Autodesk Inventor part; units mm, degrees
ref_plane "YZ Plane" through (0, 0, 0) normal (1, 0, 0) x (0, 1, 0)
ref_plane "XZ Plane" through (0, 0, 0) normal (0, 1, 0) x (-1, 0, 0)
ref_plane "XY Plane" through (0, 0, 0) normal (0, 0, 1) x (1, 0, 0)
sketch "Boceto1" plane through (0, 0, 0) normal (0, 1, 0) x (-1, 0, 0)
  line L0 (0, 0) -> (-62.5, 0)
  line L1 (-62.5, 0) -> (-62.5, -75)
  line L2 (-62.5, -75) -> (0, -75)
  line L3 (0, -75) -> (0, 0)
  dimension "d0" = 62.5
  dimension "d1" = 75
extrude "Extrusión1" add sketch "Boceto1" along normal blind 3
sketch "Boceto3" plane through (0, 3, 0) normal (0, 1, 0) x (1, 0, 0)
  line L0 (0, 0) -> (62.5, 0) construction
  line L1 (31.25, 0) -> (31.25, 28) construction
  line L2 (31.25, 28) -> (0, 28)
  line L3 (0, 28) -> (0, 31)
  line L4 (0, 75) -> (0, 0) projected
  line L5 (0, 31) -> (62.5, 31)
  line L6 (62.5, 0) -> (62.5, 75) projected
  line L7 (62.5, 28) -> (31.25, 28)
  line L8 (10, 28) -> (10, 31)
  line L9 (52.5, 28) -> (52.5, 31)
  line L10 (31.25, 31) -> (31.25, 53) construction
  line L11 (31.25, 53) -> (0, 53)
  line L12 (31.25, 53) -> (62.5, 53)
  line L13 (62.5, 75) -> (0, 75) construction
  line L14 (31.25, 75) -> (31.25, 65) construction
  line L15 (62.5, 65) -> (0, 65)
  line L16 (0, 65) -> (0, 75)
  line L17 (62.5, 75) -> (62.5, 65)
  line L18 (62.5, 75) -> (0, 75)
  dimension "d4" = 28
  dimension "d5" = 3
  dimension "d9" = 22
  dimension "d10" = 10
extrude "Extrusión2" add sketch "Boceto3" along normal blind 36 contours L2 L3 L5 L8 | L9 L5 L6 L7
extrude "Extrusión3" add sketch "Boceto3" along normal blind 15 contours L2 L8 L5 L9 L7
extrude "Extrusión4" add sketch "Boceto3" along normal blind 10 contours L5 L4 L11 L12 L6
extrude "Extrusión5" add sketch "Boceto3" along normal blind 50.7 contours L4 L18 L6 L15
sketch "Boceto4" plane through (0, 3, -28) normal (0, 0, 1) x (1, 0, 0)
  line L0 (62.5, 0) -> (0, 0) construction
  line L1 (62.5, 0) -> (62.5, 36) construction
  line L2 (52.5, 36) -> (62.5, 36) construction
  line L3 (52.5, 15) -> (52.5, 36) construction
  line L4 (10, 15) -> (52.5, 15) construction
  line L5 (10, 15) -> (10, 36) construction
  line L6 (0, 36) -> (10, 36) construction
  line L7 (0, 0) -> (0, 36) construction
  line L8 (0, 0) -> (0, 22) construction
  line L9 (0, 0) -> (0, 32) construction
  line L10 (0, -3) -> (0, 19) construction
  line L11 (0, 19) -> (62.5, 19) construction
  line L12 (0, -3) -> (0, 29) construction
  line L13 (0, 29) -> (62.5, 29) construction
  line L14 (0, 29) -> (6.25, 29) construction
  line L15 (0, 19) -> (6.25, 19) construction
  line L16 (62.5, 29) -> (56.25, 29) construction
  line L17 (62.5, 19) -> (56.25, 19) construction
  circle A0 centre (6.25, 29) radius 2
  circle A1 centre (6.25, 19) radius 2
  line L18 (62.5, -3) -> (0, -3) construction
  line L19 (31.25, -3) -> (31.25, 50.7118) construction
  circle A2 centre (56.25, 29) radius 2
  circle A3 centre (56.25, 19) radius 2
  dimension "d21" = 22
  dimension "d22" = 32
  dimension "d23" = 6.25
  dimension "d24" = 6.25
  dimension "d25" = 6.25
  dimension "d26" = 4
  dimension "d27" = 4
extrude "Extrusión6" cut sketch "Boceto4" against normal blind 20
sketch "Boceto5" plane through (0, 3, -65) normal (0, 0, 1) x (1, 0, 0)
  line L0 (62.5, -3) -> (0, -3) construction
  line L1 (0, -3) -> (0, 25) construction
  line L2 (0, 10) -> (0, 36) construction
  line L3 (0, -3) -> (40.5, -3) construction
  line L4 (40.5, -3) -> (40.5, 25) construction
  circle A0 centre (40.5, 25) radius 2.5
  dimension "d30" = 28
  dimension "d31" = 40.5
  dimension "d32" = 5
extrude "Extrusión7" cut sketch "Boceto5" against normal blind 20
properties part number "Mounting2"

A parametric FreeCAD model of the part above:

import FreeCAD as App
import Part
import Sketcher
Q = App.Units.Quantity

doc = App.newDocument("Part")
params = doc.addObject("Spreadsheet::Sheet", "Params")
for row, (alias, value) in enumerate([
    ("sketch1_height", "75 mm"),
    ("sketch1_width", "62.5 mm"),
    ("pad1_length", "3 mm"),
    ("sketch2_width", "10 mm"),
    ("sketch2_height", "3 mm"),
    ("pad2_length", "36 mm"),
    ("sketch3_height", "3 mm"),
    ("sketch3_width", "42.5 mm"),
    ("pad3_length", "15 mm"),
    ("sketch4_height", "22 mm"),
    ("sketch4_width", "62.5 mm"),
    ("pad4_length", "10 mm"),
    ("sketch5_height", "10 mm"),
    ("sketch5_width", "62.5 mm"),
    ("pad5_length", "50.7 mm"),
    ("sketch6_diameter", "4 mm"),
    ("pocket1_length", "20 mm"),
    ("sketch7_diameter", "5 mm"),
    ("pocket2_length", "20 mm"),
], start=1):
    params.set(f"A{row}", alias)
    params.set(f"B{row}", "=" + value)
    params.setAlias(f"B{row}", alias)

body = doc.addObject("PartDesign::Body", "Body")

sketch1 = doc.addObject("Sketcher::SketchObject", "Sketch")
body.addObject(sketch1)
sketch1.AttachmentSupport = (doc.XZ_Plane, [""])
sketch1.MapMode = "FlatFace"
sketch1.addGeometry(Part.LineSegment(App.Vector(0, -75, 0), App.Vector(0, 0, 0)), False)
sketch1.addGeometry(Part.LineSegment(App.Vector(0, 0, 0), App.Vector(62, 0, 0)), False)
sketch1.addGeometry(Part.LineSegment(App.Vector(62, 0, 0), App.Vector(62, -75, 0)), False)
sketch1.addGeometry(Part.LineSegment(App.Vector(62, -75, 0), App.Vector(0, -75, 0)), False)
sketch1.addConstraint(Sketcher.Constraint("Coincident", 0, 2, 1, 1))
sketch1.addConstraint(Sketcher.Constraint("Coincident", 1, 2, 2, 1))
sketch1.addConstraint(Sketcher.Constraint("Coincident", 2, 2, 3, 1))
sketch1.addConstraint(Sketcher.Constraint("Coincident", 3, 2, 0, 1))
sketch1.addConstraint(Sketcher.Constraint("Vertical", 0))
sketch1.addConstraint(Sketcher.Constraint("Horizontal", 1))
sketch1.addConstraint(Sketcher.Constraint("Vertical", 2))
sketch1.addConstraint(Sketcher.Constraint("Horizontal", 3))
sketch1.addConstraint(Sketcher.Constraint("Coincident", 0, 2, -1, 1))
sketch1.addConstraint(Sketcher.Constraint("DistanceY", 0, 1, 0, 2, Q("75 mm")))
sketch1.addConstraint(Sketcher.Constraint("DistanceX", 1, 1, 1, 2, Q("62.5 mm")))
sketch1.setExpression("Constraints[9]", "Params.sketch1_height")
sketch1.setExpression("Constraints[10]", "Params.sketch1_width")
pad1 = doc.addObject("PartDesign::Pad", "Pad")
body.addObject(pad1)
pad1.Profile = sketch1
pad1.setExpression("Length", "Params.pad1_length")
pad1.Reversed = True

sketch2 = doc.addObject("Sketcher::SketchObject", "Sketch001")
body.addObject(sketch2)
sketch2.AttachmentSupport = (doc.XZ_Plane, [""])
sketch2.MapMode = "FlatFace"
sketch2.AttachmentOffset = App.Placement(App.Vector(0, 0, -3), App.Rotation())
sketch2.addGeometry(Part.LineSegment(App.Vector(0, -28, 0), App.Vector(10, -28, 0)), False)
sketch2.addGeometry(Part.LineSegment(App.Vector(10, -28, 0), App.Vector(10, -31, 0)), False)
sketch2.addGeometry(Part.LineSegment(App.Vector(10, -31, 0), App.Vector(0, -31, 0)), False)
sketch2.addGeometry(Part.LineSegment(App.Vector(0, -31, 0), App.Vector(0, -28, 0)), False)
sketch2.addGeometry(Part.LineSegment(App.Vector(52.5, -31, 0), App.Vector(52.5, -28, 0)), False)
sketch2.addGeometry(Part.LineSegment(App.Vector(52.5, -28, 0), App.Vector(62.5, -28, 0)), False)
sketch2.addGeometry(Part.LineSegment(App.Vector(62.5, -28, 0), App.Vector(62.5, -31, 0)), False)
sketch2.addGeometry(Part.LineSegment(App.Vector(62.5, -31, 0), App.Vector(52.5, -31, 0)), False)
sketch2.addConstraint(Sketcher.Constraint("Coincident", 0, 2, 1, 1))
sketch2.addConstraint(Sketcher.Constraint("Coincident", 1, 2, 2, 1))
sketch2.addConstraint(Sketcher.Constraint("Coincident", 2, 2, 3, 1))
sketch2.addConstraint(Sketcher.Constraint("Coincident", 3, 2, 0, 1))
sketch2.addConstraint(Sketcher.Constraint("Coincident", 4, 2, 5, 1))
sketch2.addConstraint(Sketcher.Constraint("Coincident", 5, 2, 6, 1))
sketch2.addConstraint(Sketcher.Constraint("Coincident", 6, 2, 7, 1))
sketch2.addConstraint(Sketcher.Constraint("Coincident", 7, 2, 4, 1))
sketch2.addConstraint(Sketcher.Constraint("Horizontal", 0))
sketch2.addConstraint(Sketcher.Constraint("Vertical", 1))
sketch2.addConstraint(Sketcher.Constraint("Horizontal", 2))
sketch2.addConstraint(Sketcher.Constraint("Vertical", 3))
sketch2.addConstraint(Sketcher.Constraint("Vertical", 4))
sketch2.addConstraint(Sketcher.Constraint("Horizontal", 5))
sketch2.addConstraint(Sketcher.Constraint("Vertical", 6))
sketch2.addConstraint(Sketcher.Constraint("Horizontal", 7))
sketch2.addConstraint(Sketcher.Constraint("PointOnObject", 2, 2, -2))
sketch2.addConstraint(Sketcher.Constraint("Horizontal", 3, 2, 4, 2))
sketch2.addConstraint(Sketcher.Constraint("Horizontal", 2, 2, 6, 2))
sketch2.addConstraint(Sketcher.Constraint("Equal", 2, 5))
sketch2.addConstraint(Sketcher.Constraint("DistanceX", 0, 1, 0, 2, Q("10 mm")))
sketch2.addConstraint(Sketcher.Constraint("DistanceY", 1, 2, 1, 1, Q("3 mm")))
sketch2.addConstraint(Sketcher.Constraint("DistanceY", 0, 2, -1, 1, Q("28 mm")))
sketch2.addConstraint(Sketcher.Constraint("DistanceX", -1, 1, 4, 2, Q("52.5 mm")))
sketch2.setExpression("Constraints[20]", "Params.sketch2_width")
sketch2.setExpression("Constraints[21]", "Params.sketch2_height")
pad2 = doc.addObject("PartDesign::Pad", "Pad001")
body.addObject(pad2)
pad2.Profile = sketch2
pad2.setExpression("Length", "Params.pad2_length")
pad2.Reversed = True

sketch3 = doc.addObject("Sketcher::SketchObject", "Sketch002")
body.addObject(sketch3)
sketch3.AttachmentSupport = (doc.XZ_Plane, [""])
sketch3.MapMode = "FlatFace"
sketch3.AttachmentOffset = App.Placement(App.Vector(0, 0, -3), App.Rotation())
sketch3.addGeometry(Part.LineSegment(App.Vector(10, -28, 0), App.Vector(52.5, -28, 0)), False)
sketch3.addGeometry(Part.LineSegment(App.Vector(52.5, -28, 0), App.Vector(52.5, -31, 0)), False)
sketch3.addGeometry(Part.LineSegment(App.Vector(52.5, -31, 0), App.Vector(10, -31, 0)), False)
sketch3.addGeometry(Part.LineSegment(App.Vector(10, -31, 0), App.Vector(10, -28, 0)), False)
sketch3.addConstraint(Sketcher.Constraint("Coincident", 0, 2, 1, 1))
sketch3.addConstraint(Sketcher.Constraint("Coincident", 1, 2, 2, 1))
sketch3.addConstraint(Sketcher.Constraint("Coincident", 2, 2, 3, 1))
sketch3.addConstraint(Sketcher.Constraint("Coincident", 3, 2, 0, 1))
sketch3.addConstraint(Sketcher.Constraint("Horizontal", 0))
sketch3.addConstraint(Sketcher.Constraint("Vertical", 1))
sketch3.addConstraint(Sketcher.Constraint("Horizontal", 2))
sketch3.addConstraint(Sketcher.Constraint("Vertical", 3))
sketch3.addConstraint(Sketcher.Constraint("DistanceY", 1, 2, 1, 1, Q("3 mm")))
sketch3.addConstraint(Sketcher.Constraint("DistanceY", 0, 2, -1, 1, Q("28 mm")))
sketch3.addConstraint(Sketcher.Constraint("DistanceX", -1, 1, 2, 2, Q("10 mm")))
sketch3.addConstraint(Sketcher.Constraint("DistanceX", 0, 1, 0, 2, Q("42.5 mm")))
sketch3.setExpression("Constraints[8]", "Params.sketch3_height")
sketch3.setExpression("Constraints[11]", "Params.sketch3_width")
pad3 = doc.addObject("PartDesign::Pad", "Pad002")
body.addObject(pad3)
pad3.Profile = sketch3
pad3.setExpression("Length", "Params.pad3_length")
pad3.Reversed = True

sketch4 = doc.addObject("Sketcher::SketchObject", "Sketch003")
body.addObject(sketch4)
sketch4.AttachmentSupport = (doc.XZ_Plane, [""])
sketch4.MapMode = "FlatFace"
sketch4.AttachmentOffset = App.Placement(App.Vector(0, 0, -3), App.Rotation())
sketch4.addGeometry(Part.LineSegment(App.Vector(0, -31, 0), App.Vector(62, -31, 0)), False)
sketch4.addGeometry(Part.LineSegment(App.Vector(62, -31, 0), App.Vector(62, -53, 0)), False)
sketch4.addGeometry(Part.LineSegment(App.Vector(62, -53, 0), App.Vector(0, -53, 0)), False)
sketch4.addGeometry(Part.LineSegment(App.Vector(0, -53, 0), App.Vector(0, -31, 0)), False)
sketch4.addConstraint(Sketcher.Constraint("Coincident", 0, 2, 1, 1))
sketch4.addConstraint(Sketcher.Constraint("Coincident", 1, 2, 2, 1))
sketch4.addConstraint(Sketcher.Constraint("Coincident", 2, 2, 3, 1))
sketch4.addConstraint(Sketcher.Constraint("Coincident", 3, 2, 0, 1))
sketch4.addConstraint(Sketcher.Constraint("Horizontal", 0))
sketch4.addConstraint(Sketcher.Constraint("Vertical", 1))
sketch4.addConstraint(Sketcher.Constraint("Horizontal", 2))
sketch4.addConstraint(Sketcher.Constraint("Vertical", 3))
sketch4.addConstraint(Sketcher.Constraint("PointOnObject", 2, 2, -2))
sketch4.addConstraint(Sketcher.Constraint("DistanceY", 1, 2, 1, 1, Q("22 mm")))
sketch4.addConstraint(Sketcher.Constraint("DistanceX", 0, 1, 0, 2, Q("62.5 mm")))
sketch4.addConstraint(Sketcher.Constraint("DistanceY", 0, 2, -1, 1, Q("31 mm")))
sketch4.setExpression("Constraints[9]", "Params.sketch4_height")
sketch4.setExpression("Constraints[10]", "Params.sketch4_width")
pad4 = doc.addObject("PartDesign::Pad", "Pad003")
body.addObject(pad4)
pad4.Profile = sketch4
pad4.setExpression("Length", "Params.pad4_length")
pad4.Reversed = True

sketch5 = doc.addObject("Sketcher::SketchObject", "Sketch004")
body.addObject(sketch5)
sketch5.AttachmentSupport = (doc.XZ_Plane, [""])
sketch5.MapMode = "FlatFace"
sketch5.AttachmentOffset = App.Placement(App.Vector(0, 0, -3), App.Rotation())
sketch5.addGeometry(Part.LineSegment(App.Vector(0, -75, 0), App.Vector(0, -65, 0)), False)
sketch5.addGeometry(Part.LineSegment(App.Vector(0, -65, 0), App.Vector(62, -65, 0)), False)
sketch5.addGeometry(Part.LineSegment(App.Vector(62, -65, 0), App.Vector(62, -75, 0)), False)
sketch5.addGeometry(Part.LineSegment(App.Vector(62, -75, 0), App.Vector(0, -75, 0)), False)
sketch5.addConstraint(Sketcher.Constraint("Coincident", 0, 2, 1, 1))
sketch5.addConstraint(Sketcher.Constraint("Coincident", 1, 2, 2, 1))
sketch5.addConstraint(Sketcher.Constraint("Coincident", 2, 2, 3, 1))
sketch5.addConstraint(Sketcher.Constraint("Coincident", 3, 2, 0, 1))
sketch5.addConstraint(Sketcher.Constraint("Vertical", 0))
sketch5.addConstraint(Sketcher.Constraint("Horizontal", 1))
sketch5.addConstraint(Sketcher.Constraint("Vertical", 2))
sketch5.addConstraint(Sketcher.Constraint("Horizontal", 3))
sketch5.addConstraint(Sketcher.Constraint("PointOnObject", 0, 2, -2))
sketch5.addConstraint(Sketcher.Constraint("DistanceY", 0, 1, 0, 2, Q("10 mm")))
sketch5.addConstraint(Sketcher.Constraint("DistanceX", 1, 1, 1, 2, Q("62.5 mm")))
sketch5.addConstraint(Sketcher.Constraint("DistanceY", 0, 2, -1, 1, Q("65 mm")))
sketch5.setExpression("Constraints[9]", "Params.sketch5_height")
sketch5.setExpression("Constraints[10]", "Params.sketch5_width")
pad5 = doc.addObject("PartDesign::Pad", "Pad004")
body.addObject(pad5)
pad5.Profile = sketch5
pad5.setExpression("Length", "Params.pad5_length")
pad5.Reversed = True

sketch6 = doc.addObject("Sketcher::SketchObject", "Sketch005")
body.addObject(sketch6)
sketch6.AttachmentSupport = (doc.XY_Plane, [""])
sketch6.MapMode = "FlatFace"
sketch6.AttachmentOffset = App.Placement(App.Vector(0, 0, -28), App.Rotation())
sketch6.addGeometry(Part.Circle(App.Vector(6.2, 32, 0), App.Vector(0, 0, 1), 2), False)
sketch6.addGeometry(Part.Circle(App.Vector(6.2, 22, 0), App.Vector(0, 0, 1), 2), False)
sketch6.addGeometry(Part.Circle(App.Vector(56.2, 32, 0), App.Vector(0, 0, 1), 2), False)
sketch6.addGeometry(Part.Circle(App.Vector(56.2, 22, 0), App.Vector(0, 0, 1), 2), False)
sketch6.addConstraint(Sketcher.Constraint("Equal", 0, 1))
sketch6.addConstraint(Sketcher.Constraint("Equal", 1, 2))
sketch6.addConstraint(Sketcher.Constraint("Equal", 2, 3))
sketch6.addConstraint(Sketcher.Constraint("Horizontal", 0, 3, 2, 3))
sketch6.addConstraint(Sketcher.Constraint("Horizontal", 1, 3, 3, 3))
sketch6.addConstraint(Sketcher.Constraint("Vertical", 0, 3, 1, 3))
sketch6.addConstraint(Sketcher.Constraint("Vertical", 2, 3, 3, 3))
sketch6.addConstraint(Sketcher.Constraint("Diameter", 0, Q("4 mm")))
sketch6.addConstraint(Sketcher.Constraint("DistanceY", -1, 1, 0, 3, Q("32 mm")))
sketch6.addConstraint(Sketcher.Constraint("DistanceY", -1, 1, 1, 3, Q("22 mm")))
sketch6.addConstraint(Sketcher.Constraint("DistanceX", -1, 1, 0, 3, Q("6.25 mm")))
sketch6.addConstraint(Sketcher.Constraint("DistanceX", 0, 3, 2, 3, Q("50 mm")))
sketch6.setExpression("Constraints[7]", "Params.sketch6_diameter")
pocket1 = doc.addObject("PartDesign::Pocket", "Pocket")
body.addObject(pocket1)
pocket1.Profile = sketch6
pocket1.setExpression("Length", "Params.pocket1_length")

sketch7 = doc.addObject("Sketcher::SketchObject", "Sketch006")
body.addObject(sketch7)
sketch7.AttachmentSupport = (doc.XY_Plane, [""])
sketch7.MapMode = "FlatFace"
sketch7.AttachmentOffset = App.Placement(App.Vector(0, 0, -65), App.Rotation())
sketch7.addGeometry(Part.Circle(App.Vector(40.5, 28, 0), App.Vector(0, 0, 1), 2.5), False)
sketch7.addConstraint(Sketcher.Constraint("Diameter", 0, Q("5 mm")))
sketch7.addConstraint(Sketcher.Constraint("DistanceY", -1, 1, 0, 3, Q("28 mm")))
sketch7.addConstraint(Sketcher.Constraint("DistanceX", -1, 1, 0, 3, Q("40.5 mm")))
sketch7.setExpression("Constraints[0]", "Params.sketch7_diameter")
pocket2 = doc.addObject("PartDesign::Pocket", "Pocket001")
body.addObject(pocket2)
pocket2.Profile = sketch7
pocket2.setExpression("Length", "Params.pocket2_length")

doc.recompute()
